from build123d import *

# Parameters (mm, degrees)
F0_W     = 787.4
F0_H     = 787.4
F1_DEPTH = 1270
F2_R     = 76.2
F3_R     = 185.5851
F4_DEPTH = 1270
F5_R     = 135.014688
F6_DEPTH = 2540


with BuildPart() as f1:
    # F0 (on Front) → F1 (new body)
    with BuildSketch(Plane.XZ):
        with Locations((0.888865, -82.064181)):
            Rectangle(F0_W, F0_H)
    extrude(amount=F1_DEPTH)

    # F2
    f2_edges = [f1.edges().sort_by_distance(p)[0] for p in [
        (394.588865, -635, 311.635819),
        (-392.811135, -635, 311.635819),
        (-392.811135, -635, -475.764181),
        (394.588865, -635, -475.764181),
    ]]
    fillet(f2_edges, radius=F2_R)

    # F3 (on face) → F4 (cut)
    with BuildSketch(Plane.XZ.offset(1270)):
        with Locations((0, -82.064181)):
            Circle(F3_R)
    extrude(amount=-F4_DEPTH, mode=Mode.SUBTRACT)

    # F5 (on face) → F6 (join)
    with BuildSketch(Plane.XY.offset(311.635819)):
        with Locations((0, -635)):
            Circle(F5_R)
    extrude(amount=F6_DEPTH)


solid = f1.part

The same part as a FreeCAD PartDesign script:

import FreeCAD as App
import Part
import Sketcher
from FreeCAD import Vector
Q = App.Units.Quantity


def edges_at(feature, points):
    """Names of the edges that pass closest to the given points."""
    edges = feature.Shape.Edges
    near = lambda p: min(range(len(edges)), key=lambda i: edges[i].distToShape(Part.Vertex(*p))[0])
    return sorted({f"Edge{near(p) + 1}" for p in points})

doc = App.newDocument("Part")
body = doc.addObject("PartDesign::Body", "Body")

sketch1 = doc.addObject("Sketcher::SketchObject", "Sketch")
body.addObject(sketch1)
sketch1.AttachmentSupport = (doc.XZ_Plane, [""])
sketch1.MapMode = "FlatFace"
sketch1.addGeometry(Part.LineSegment(Vector(-392.811135, 311.635819, 0), Vector(-392.811135, -475.764181, 0)), False)
sketch1.addGeometry(Part.LineSegment(Vector(-392.811135, -475.764181, 0), Vector(394.588865, -475.764181, 0)), False)
sketch1.addGeometry(Part.LineSegment(Vector(394.588865, -475.764181, 0), Vector(394.588865, 311.635819, 0)), False)
sketch1.addGeometry(Part.LineSegment(Vector(394.588865, 311.635819, 0), Vector(-392.811135, 311.635819, 0)), False)
sketch1.addConstraint(Sketcher.Constraint("Coincident", 0, 2, 1, 1))
sketch1.addConstraint(Sketcher.Constraint("Coincident", 1, 2, 2, 1))
sketch1.addConstraint(Sketcher.Constraint("Coincident", 2, 2, 3, 1))
sketch1.addConstraint(Sketcher.Constraint("Coincident", 3, 2, 0, 1))
sketch1.addConstraint(Sketcher.Constraint("Vertical", 0))
sketch1.addConstraint(Sketcher.Constraint("Horizontal", 1))
sketch1.addConstraint(Sketcher.Constraint("Vertical", 2))
sketch1.addConstraint(Sketcher.Constraint("Horizontal", 3))
sketch1.addConstraint(Sketcher.Constraint("Equal", 3, 0))
sketch1.addConstraint(Sketcher.Constraint("DistanceX", 1, 1, 1, 2, Q("31 in")))
sketch1.addConstraint(Sketcher.Constraint("DistanceY", 0, 2, -1, 1, 475.764181))
sketch1.addConstraint(Sketcher.Constraint("DistanceX", 0, 2, -1, 1, 392.811135))
pad1 = doc.addObject("PartDesign::Pad", "Pad")
body.addObject(pad1)
pad1.Profile = sketch1
pad1.Length = Q("50 in")
doc.recompute()

fillet = doc.addObject("PartDesign::Fillet", "Fillet")
body.addObject(fillet)
fillet.Base = (pad1, edges_at(pad1, [
    (394.589, -635, 311.636),
    (-392.811, -635, 311.636),
    (-392.811, -635, -475.764),
    (394.589, -635, -475.764),
]))
fillet.Radius = Q("3 in")

sketch2 = doc.addObject("Sketcher::SketchObject", "Sketch001")
body.addObject(sketch2)
sketch2.AttachmentSupport = (doc.XZ_Plane, [""])
sketch2.MapMode = "FlatFace"
sketch2.AttachmentOffset = App.Placement(Vector(0, 0, 50 * 25.4), App.Rotation())
sketch2.addGeometry(Part.Circle(Vector(0, -82.064181, 0), Vector(0, 0, 1), 185.5851), False)
sketch2.addConstraint(Sketcher.Constraint("PointOnObject", 0, 3, -2))
sketch2.addConstraint(Sketcher.Constraint("Diameter", 0, Q("14.613 in")))
sketch2.addConstraint(Sketcher.Constraint("DistanceY", 0, 3, -1, 1, 82.064181))
pocket1 = doc.addObject("PartDesign::Pocket", "Pocket")
body.addObject(pocket1)
pocket1.Profile = sketch2
pocket1.Length = Q("50 in")

sketch3 = doc.addObject("Sketcher::SketchObject", "Sketch002")
body.addObject(sketch3)
sketch3.AttachmentSupport = (doc.XY_Plane, [""])
sketch3.MapMode = "FlatFace"
sketch3.AttachmentOffset = App.Placement(Vector(0, 0, 311.635819), App.Rotation())
sketch3.addGeometry(Part.Circle(Vector(0, -635, 0), Vector(0, 0, 1), 135.014688), False)
sketch3.addConstraint(Sketcher.Constraint("PointOnObject", 0, 3, -2))
sketch3.addConstraint(Sketcher.Constraint("DistanceY", 0, 3, -1, 1, Q("25 in")))
sketch3.addConstraint(Sketcher.Constraint("Diameter", 0, 270.029376))
pad2 = doc.addObject("PartDesign::Pad", "Pad001")
body.addObject(pad2)
pad2.Profile = sketch3
pad2.Length = Q("100 in")

doc.recompute()
